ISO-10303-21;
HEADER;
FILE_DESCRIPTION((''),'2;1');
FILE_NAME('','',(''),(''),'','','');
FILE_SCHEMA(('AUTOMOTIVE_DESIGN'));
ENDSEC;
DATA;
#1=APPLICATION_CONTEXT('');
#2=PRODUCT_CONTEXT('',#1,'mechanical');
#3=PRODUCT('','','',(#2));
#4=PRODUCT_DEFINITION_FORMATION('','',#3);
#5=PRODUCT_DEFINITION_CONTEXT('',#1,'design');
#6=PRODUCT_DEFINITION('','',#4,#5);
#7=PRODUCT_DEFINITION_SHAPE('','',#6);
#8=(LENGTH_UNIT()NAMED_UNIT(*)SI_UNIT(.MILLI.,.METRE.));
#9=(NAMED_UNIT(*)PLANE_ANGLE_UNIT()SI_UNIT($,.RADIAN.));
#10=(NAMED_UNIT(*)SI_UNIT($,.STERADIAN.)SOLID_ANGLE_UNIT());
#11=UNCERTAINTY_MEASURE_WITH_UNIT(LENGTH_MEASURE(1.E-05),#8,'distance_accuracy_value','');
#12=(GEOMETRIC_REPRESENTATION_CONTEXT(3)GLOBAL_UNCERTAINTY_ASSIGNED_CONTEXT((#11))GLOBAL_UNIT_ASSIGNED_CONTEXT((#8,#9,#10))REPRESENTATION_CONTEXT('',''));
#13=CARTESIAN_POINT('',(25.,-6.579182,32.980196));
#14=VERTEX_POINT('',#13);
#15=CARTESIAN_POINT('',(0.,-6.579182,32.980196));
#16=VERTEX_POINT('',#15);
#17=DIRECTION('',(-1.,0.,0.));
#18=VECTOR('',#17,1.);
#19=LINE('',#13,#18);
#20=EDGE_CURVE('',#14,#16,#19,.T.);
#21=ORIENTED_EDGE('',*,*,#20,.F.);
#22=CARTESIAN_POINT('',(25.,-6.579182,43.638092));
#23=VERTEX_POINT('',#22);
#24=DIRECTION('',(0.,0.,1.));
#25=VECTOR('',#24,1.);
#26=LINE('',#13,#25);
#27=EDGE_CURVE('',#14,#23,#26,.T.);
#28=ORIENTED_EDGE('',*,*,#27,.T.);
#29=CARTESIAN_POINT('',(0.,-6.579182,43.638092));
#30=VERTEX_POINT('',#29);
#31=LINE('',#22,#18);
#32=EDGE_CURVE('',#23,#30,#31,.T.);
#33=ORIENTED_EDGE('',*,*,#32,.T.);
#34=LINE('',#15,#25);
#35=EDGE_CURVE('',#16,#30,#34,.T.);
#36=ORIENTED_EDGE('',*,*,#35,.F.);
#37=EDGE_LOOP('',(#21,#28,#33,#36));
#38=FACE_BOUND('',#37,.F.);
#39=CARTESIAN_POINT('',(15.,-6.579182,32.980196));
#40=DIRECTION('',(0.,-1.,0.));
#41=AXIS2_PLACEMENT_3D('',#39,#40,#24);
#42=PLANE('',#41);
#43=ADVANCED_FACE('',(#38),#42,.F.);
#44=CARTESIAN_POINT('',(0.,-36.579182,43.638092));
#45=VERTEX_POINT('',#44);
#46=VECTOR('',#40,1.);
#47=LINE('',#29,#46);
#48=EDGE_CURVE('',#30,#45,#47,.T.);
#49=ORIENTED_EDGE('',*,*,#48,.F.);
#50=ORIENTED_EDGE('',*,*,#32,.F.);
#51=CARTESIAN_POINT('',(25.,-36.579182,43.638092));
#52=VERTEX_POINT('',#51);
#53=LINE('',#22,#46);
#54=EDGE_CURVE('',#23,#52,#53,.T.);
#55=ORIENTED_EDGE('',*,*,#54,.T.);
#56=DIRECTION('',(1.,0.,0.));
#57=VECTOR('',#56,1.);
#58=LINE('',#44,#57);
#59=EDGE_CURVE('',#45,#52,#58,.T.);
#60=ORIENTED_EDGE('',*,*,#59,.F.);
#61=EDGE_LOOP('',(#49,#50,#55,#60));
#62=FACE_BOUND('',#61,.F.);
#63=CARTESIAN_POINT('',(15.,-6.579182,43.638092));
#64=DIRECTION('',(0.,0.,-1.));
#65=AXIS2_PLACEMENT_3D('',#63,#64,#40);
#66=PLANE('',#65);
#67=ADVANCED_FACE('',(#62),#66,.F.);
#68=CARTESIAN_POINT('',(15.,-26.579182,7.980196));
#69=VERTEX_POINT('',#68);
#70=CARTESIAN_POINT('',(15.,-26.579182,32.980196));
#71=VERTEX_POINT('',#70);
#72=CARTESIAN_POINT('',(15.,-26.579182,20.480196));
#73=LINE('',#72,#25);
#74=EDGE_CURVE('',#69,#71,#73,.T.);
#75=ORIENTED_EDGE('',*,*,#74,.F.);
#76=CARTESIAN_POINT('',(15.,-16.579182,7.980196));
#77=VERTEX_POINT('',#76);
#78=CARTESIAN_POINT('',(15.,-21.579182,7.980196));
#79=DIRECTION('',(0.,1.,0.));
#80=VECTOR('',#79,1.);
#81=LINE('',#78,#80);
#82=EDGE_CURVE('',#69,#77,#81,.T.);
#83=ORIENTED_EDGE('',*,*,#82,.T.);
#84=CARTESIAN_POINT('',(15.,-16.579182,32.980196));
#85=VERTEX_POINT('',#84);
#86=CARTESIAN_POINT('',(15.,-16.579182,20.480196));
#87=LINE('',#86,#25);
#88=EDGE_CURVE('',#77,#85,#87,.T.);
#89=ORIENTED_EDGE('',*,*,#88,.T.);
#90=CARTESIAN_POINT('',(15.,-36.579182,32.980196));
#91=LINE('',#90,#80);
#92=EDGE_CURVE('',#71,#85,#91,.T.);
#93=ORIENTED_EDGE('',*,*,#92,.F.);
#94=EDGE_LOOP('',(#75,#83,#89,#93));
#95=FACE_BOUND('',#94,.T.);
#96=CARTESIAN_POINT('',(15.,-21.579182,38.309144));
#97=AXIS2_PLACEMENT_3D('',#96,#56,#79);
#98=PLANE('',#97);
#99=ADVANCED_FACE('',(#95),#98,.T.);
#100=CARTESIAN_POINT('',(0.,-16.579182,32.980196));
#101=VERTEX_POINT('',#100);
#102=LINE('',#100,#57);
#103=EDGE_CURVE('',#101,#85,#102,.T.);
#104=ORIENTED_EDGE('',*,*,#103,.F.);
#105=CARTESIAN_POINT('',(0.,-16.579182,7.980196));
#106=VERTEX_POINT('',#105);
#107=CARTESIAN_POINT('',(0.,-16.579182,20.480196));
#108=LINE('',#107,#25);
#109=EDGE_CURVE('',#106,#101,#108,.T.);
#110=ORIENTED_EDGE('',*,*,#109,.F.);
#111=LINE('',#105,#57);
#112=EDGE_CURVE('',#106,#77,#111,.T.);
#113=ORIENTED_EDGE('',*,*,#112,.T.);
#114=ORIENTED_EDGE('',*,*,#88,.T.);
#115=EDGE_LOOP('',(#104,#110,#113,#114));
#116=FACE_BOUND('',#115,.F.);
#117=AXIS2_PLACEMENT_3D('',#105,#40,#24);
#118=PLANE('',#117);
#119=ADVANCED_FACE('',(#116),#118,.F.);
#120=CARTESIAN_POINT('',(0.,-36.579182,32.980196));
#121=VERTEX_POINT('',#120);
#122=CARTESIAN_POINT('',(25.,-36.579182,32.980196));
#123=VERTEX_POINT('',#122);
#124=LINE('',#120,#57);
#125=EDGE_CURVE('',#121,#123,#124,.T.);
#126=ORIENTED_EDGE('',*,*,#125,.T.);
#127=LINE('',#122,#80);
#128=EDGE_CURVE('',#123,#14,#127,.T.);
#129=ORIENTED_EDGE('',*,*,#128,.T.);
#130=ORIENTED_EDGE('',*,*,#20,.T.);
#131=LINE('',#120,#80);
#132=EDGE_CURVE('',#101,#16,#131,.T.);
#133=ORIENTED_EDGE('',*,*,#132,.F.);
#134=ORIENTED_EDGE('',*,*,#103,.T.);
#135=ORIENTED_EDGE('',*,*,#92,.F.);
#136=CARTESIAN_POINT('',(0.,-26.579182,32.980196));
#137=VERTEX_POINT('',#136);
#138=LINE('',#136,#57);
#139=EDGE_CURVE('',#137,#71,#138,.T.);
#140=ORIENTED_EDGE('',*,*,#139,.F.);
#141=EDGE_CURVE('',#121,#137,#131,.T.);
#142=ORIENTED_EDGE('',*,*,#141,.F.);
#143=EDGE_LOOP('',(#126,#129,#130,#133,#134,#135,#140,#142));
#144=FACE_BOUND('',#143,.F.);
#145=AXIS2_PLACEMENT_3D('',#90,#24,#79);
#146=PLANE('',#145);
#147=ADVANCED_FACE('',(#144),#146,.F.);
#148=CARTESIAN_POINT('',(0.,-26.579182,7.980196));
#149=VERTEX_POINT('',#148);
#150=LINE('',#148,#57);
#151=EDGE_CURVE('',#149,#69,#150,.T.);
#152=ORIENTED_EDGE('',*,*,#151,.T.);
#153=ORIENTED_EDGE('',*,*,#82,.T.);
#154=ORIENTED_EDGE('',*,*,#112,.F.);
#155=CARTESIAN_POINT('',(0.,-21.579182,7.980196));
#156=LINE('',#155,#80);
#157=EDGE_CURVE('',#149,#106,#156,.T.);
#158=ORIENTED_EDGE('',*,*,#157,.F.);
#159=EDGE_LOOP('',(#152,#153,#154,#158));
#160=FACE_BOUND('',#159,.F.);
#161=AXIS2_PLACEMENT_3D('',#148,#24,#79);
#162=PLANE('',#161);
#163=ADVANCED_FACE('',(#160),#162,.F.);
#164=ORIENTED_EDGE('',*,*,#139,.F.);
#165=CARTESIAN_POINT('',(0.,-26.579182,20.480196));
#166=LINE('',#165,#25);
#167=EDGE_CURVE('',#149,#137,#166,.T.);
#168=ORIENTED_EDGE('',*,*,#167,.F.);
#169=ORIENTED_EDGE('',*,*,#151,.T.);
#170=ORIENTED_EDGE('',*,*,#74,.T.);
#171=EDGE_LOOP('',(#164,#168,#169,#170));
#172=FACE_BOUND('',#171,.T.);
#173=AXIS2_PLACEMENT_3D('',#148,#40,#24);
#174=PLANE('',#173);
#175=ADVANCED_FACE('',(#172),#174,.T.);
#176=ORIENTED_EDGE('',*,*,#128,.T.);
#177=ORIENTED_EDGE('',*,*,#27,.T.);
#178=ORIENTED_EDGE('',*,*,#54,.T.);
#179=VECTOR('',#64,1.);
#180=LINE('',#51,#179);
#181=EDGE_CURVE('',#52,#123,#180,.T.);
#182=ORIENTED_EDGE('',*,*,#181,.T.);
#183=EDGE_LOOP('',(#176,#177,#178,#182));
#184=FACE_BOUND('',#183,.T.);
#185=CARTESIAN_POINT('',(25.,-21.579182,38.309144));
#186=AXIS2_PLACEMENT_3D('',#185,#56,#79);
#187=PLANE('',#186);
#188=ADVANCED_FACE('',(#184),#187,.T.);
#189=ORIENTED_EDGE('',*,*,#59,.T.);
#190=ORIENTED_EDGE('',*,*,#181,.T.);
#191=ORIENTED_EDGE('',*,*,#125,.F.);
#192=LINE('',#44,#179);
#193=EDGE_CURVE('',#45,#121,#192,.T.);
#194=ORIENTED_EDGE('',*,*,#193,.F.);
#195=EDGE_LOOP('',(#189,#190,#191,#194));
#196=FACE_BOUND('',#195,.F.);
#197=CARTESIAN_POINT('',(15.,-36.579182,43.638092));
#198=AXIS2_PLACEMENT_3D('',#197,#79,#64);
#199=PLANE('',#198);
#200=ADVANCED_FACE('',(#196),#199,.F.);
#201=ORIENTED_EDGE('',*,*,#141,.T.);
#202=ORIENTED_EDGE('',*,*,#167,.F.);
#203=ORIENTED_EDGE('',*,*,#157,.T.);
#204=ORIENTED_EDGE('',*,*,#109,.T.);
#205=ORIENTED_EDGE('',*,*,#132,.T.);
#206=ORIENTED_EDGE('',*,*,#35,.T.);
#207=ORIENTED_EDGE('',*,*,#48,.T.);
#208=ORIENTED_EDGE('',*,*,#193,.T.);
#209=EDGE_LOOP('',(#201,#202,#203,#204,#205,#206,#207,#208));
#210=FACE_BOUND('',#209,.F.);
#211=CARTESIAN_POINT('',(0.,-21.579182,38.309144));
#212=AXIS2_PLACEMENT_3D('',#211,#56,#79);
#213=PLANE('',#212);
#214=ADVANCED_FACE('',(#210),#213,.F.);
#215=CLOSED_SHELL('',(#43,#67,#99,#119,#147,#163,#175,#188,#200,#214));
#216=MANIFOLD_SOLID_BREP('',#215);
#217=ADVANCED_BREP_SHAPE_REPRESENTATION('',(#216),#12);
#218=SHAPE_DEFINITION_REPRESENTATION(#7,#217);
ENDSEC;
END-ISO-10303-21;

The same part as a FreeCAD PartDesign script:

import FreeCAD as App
import Part
import Sketcher
Q = App.Units.Quantity

doc = App.newDocument("Part")
body = doc.addObject("PartDesign::Body", "Body")

# Sketch on YZ plane
sketch1 = body.newObject("Sketcher::SketchObject", "Sketch")
sketch1.AttachmentSupport = (doc.getObject("YZ_Plane"), [""])
sketch1.MapMode = "FlatFace"
sketch1.addGeometry(Part.LineSegment(App.Vector(-7, 44, 0), App.Vector(-37, 44, 0)), False)
sketch1.addGeometry(Part.LineSegment(App.Vector(-37, 44, 0), App.Vector(-37, 33, 0)), False)
sketch1.addGeometry(Part.LineSegment(App.Vector(-37, 33, 0), App.Vector(-27, 33, 0)), False)
sketch1.addGeometry(Part.LineSegment(App.Vector(-27, 33, 0), App.Vector(-27, 8, 0)), False)
sketch1.addGeometry(Part.LineSegment(App.Vector(-27, 8, 0), App.Vector(-17, 8, 0)), False)
sketch1.addGeometry(Part.LineSegment(App.Vector(-17, 8, 0), App.Vector(-17, 33, 0)), False)
sketch1.addGeometry(Part.LineSegment(App.Vector(-17, 33, 0), App.Vector(-7, 33, 0)), False)
sketch1.addGeometry(Part.LineSegment(App.Vector(-7, 33, 0), App.Vector(-7, 44, 0)), False)
sketch1.addConstraint(Sketcher.Constraint("Coincident", 0, 2, 1, 1))
sketch1.addConstraint(Sketcher.Constraint("Coincident", 1, 2, 2, 1))
sketch1.addConstraint(Sketcher.Constraint("Coincident", 2, 2, 3, 1))
sketch1.addConstraint(Sketcher.Constraint("Coincident", 3, 2, 4, 1))
sketch1.addConstraint(Sketcher.Constraint("Coincident", 4, 2, 5, 1))
sketch1.addConstraint(Sketcher.Constraint("Coincident", 5, 2, 6, 1))
sketch1.addConstraint(Sketcher.Constraint("Coincident", 6, 2, 7, 1))
sketch1.addConstraint(Sketcher.Constraint("Coincident", 7, 2, 0, 1))
sketch1.addConstraint(Sketcher.Constraint("Horizontal", 0))
sketch1.addConstraint(Sketcher.Constraint("Vertical", 1))
sketch1.addConstraint(Sketcher.Constraint("Horizontal", 2))
sketch1.addConstraint(Sketcher.Constraint("Vertical", 3))
sketch1.addConstraint(Sketcher.Constraint("Horizontal", 4))
sketch1.addConstraint(Sketcher.Constraint("Vertical", 5))
sketch1.addConstraint(Sketcher.Constraint("Horizontal", 6))
sketch1.addConstraint(Sketcher.Constraint("Vertical", 7))
sketch1.addConstraint(Sketcher.Constraint("Horizontal", 2, 2, 5, 2))
sketch1.addConstraint(Sketcher.Constraint("Equal", 2, 4))
sketch1.addConstraint(Sketcher.Constraint("Equal", 4, 6))
sketch1.addConstraint(Sketcher.Constraint("DistanceX", 0, 2, 0, 1, Q("30 mm")))
sketch1.addConstraint(Sketcher.Constraint("DistanceY", 3, 2, 3, 1, Q("25 mm")))
sketch1.addConstraint(Sketcher.Constraint("DistanceY", 1, 2, 1, 1, Q("10.657896 mm")))
sketch1.addConstraint(Sketcher.Constraint("DistanceX", 2, 2, -1, 1, Q("26.579182 mm")))
sketch1.addConstraint(Sketcher.Constraint("DistanceY", -1, 1, 0, 2, Q("43.638092 mm")))
pad1 = body.newObject("PartDesign::Pad", "Pad")
pad1.Profile = sketch1
pad1.Length = 15

# Sketch on YZ plane
sketch2 = body.newObject("Sketcher::SketchObject", "Sketch001")
sketch2.AttachmentSupport = (doc.getObject("YZ_Plane"), [""])
sketch2.MapMode = "FlatFace"
sketch2.AttachmentOffset = App.Placement(App.Vector(0, 0, 15), App.Rotation())
sketch2.addGeometry(Part.LineSegment(App.Vector(-7, 44, 0), App.Vector(-37, 44, 0)), False)
sketch2.addGeometry(Part.LineSegment(App.Vector(-37, 44, 0), App.Vector(-37, 33, 0)), False)
sketch2.addGeometry(Part.LineSegment(App.Vector(-37, 33, 0), App.Vector(-7, 33, 0)), False)
sketch2.addGeometry(Part.LineSegment(App.Vector(-7, 33, 0), App.Vector(-7, 44, 0)), False)
sketch2.addConstraint(Sketcher.Constraint("Coincident", 0, 2, 1, 1))
sketch2.addConstraint(Sketcher.Constraint("Coincident", 1, 2, 2, 1))
sketch2.addConstraint(Sketcher.Constraint("Coincident", 2, 2, 3, 1))
sketch2.addConstraint(Sketcher.Constraint("Coincident", 3, 2, 0, 1))
sketch2.addConstraint(Sketcher.Constraint("Horizontal", 0))
sketch2.addConstraint(Sketcher.Constraint("Vertical", 1))
sketch2.addConstraint(Sketcher.Constraint("Horizontal", 2))
sketch2.addConstraint(Sketcher.Constraint("Vertical", 3))
sketch2.addConstraint(Sketcher.Constraint("DistanceX", 0, 2, 0, 1, Q("30 mm")))
sketch2.addConstraint(Sketcher.Constraint("DistanceY", 1, 2, 1, 1, Q("10.657896 mm")))
sketch2.addConstraint(Sketcher.Constraint("DistanceX", 0, 2, -1, 1, Q("36.579182 mm")))
sketch2.addConstraint(Sketcher.Constraint("DistanceY", -1, 1, 0, 2, Q("43.638092 mm")))
pad2 = body.newObject("PartDesign::Pad", "Pad001")
pad2.Profile = sketch2
pad2.Length = 10

doc.recompute()
